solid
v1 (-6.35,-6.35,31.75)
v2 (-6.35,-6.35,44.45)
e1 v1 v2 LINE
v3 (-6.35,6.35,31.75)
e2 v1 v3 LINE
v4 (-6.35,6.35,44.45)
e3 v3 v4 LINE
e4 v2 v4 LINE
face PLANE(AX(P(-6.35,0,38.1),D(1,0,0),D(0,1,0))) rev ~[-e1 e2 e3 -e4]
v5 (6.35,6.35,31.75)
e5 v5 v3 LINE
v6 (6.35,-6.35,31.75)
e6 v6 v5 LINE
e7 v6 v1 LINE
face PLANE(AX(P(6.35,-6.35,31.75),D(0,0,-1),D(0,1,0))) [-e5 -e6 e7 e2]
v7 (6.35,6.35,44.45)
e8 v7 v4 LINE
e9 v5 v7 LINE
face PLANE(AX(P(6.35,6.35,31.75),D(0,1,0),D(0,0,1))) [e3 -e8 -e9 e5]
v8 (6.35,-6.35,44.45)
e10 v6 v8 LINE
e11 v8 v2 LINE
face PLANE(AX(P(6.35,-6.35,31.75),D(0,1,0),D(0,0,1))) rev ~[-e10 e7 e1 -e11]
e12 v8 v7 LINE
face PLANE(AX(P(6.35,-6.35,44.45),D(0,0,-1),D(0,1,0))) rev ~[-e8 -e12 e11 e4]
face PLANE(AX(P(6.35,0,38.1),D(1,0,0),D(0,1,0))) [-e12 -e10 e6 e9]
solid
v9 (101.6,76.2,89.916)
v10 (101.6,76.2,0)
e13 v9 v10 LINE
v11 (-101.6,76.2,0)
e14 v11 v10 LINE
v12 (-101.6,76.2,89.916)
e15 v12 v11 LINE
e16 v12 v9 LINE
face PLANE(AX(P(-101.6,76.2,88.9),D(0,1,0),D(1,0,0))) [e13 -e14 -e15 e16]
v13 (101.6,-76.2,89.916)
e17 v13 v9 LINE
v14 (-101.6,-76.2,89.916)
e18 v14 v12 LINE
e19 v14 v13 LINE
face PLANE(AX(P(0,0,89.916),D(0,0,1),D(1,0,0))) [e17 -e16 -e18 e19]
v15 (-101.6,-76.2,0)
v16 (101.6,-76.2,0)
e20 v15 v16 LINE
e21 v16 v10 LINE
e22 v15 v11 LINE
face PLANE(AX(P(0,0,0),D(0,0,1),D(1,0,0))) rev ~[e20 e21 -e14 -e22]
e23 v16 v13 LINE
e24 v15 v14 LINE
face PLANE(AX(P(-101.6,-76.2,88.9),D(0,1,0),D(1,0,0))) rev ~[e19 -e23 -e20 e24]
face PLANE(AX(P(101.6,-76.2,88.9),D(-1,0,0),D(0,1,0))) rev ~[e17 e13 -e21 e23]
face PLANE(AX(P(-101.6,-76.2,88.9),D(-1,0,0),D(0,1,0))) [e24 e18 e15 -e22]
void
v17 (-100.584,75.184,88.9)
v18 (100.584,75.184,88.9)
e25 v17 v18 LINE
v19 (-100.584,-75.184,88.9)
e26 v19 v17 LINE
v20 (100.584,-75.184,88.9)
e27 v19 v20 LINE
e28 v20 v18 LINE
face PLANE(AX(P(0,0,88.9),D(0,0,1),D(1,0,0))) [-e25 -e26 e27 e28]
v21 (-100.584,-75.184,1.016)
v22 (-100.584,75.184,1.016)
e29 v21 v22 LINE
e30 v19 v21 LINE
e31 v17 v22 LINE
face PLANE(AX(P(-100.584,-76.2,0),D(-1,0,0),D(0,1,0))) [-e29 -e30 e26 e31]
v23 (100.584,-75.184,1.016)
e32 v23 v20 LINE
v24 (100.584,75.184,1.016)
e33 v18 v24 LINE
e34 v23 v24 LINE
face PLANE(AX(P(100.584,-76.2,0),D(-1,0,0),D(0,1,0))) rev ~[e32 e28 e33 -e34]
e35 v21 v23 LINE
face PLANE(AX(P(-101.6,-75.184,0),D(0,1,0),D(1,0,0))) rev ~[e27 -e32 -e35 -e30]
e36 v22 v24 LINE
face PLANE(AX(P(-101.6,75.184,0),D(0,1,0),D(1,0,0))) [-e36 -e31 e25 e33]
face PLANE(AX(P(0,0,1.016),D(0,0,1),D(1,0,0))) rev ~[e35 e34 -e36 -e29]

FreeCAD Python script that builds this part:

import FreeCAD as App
import Part
import Sketcher
Q = App.Units.Quantity


def faces_at(feature, points):
    """Names of the faces that lie closest to the given points."""
    faces = feature.Shape.Faces
    near = lambda p: min(range(len(faces)), key=lambda i: faces[i].distToShape(Part.Vertex(*p))[0])
    return sorted({f"Face{near(p) + 1}" for p in points})


def add_polygon(sketch, points):
    """Adds a closed chain of lines whose ends are joined by coincident constraints."""
    first, n = sketch.GeometryCount, len(points)
    for a, b in zip(points, points[1:] + points[:1]):
        sketch.addGeometry(Part.LineSegment(App.Vector(*a, 0), App.Vector(*b, 0)), False)
    for i in range(n):
        sketch.addConstraint(Sketcher.Constraint("Coincident", first + i, 2, first + (i + 1) % n, 1))

doc = App.newDocument("Part")
body = doc.addObject("PartDesign::Body", "Body")

sketch1 = body.newObject("Sketcher::SketchObject", "Sketch")
sketch1.AttachmentSupport = (doc.getObject("XY_Plane"), [""])
sketch1.MapMode = "FlatFace"
add_polygon(sketch1, [(-101.6, 76.2), (-101.6, -76.2), (101.6, -76.2), (101.6, 76.2)])
sketch1.addConstraint([
    Sketcher.Constraint("Vertical", 0),
    Sketcher.Constraint("Horizontal", 1),
    Sketcher.Constraint("Vertical", 2),
    Sketcher.Constraint("Horizontal", 3),
    Sketcher.Constraint("Symmetric", 0, 2, 2, 2, -1, 1),
    Sketcher.Constraint("DistanceX", 1, 1, 1, 2, Q("8 in")),
    Sketcher.Constraint("DistanceY", 0, 2, 0, 1, Q("6 in")),
])
pad1 = body.newObject("PartDesign::Pad", "Pad")
pad1.Profile = sketch1
pad1.Length = Q("3.5 in")
doc.recompute()

thickness = body.newObject("PartDesign::Thickness", "Thickness")
thickness.Base = (pad1, faces_at(pad1, [(0, 0, 88.9)]))
thickness.Value = Q("0.04 in")
thickness.Reversed = True
thickness.Join = "Arc"

sketch2 = body.newObject("Sketcher::SketchObject", "Sketch001")
sketch2.AttachmentSupport = (doc.getObject("XY_Plane"), [""])
sketch2.MapMode = "FlatFace"
sketch2.AttachmentOffset = App.Placement(App.Vector(0, 0, 3.5 * 25.4), App.Rotation())
add_polygon(sketch2, [(-101.6, 76.2), (-101.6, -76.2), (101.6, -76.2), (101.6, 76.2)])
sketch2.addConstraint([
    Sketcher.Constraint("Vertical", 0),
    Sketcher.Constraint("Horizontal", 1),
    Sketcher.Constraint("Vertical", 2),
    Sketcher.Constraint("Horizontal", 3),
    Sketcher.Constraint("Symmetric", 0, 2, 2, 2, -1, 1),
    Sketcher.Constraint("DistanceX", 1, 1, 1, 2, Q("8 in")),
    Sketcher.Constraint("DistanceY", 0, 2, 0, 1, Q("6 in")),
])
pad2 = body.newObject("PartDesign::Pad", "Pad001")
pad2.Profile = sketch2
pad2.Length = Q("0.04 in")
body2 = doc.addObject("PartDesign::Body", "Body001")

sketch3 = body2.newObject("Sketcher::SketchObject", "Sketch002")
sketch3.AttachmentSupport = (doc.getObject("YZ_Plane001"), [""])
sketch3.MapMode = "FlatFace"
sketch3.AttachmentOffset = App.Placement(App.Vector(0, 0, 0.25 * 25.4), App.Rotation())
add_polygon(sketch3, [(-6.35, 44.45), (-6.35, 31.75), (6.35, 31.75), (6.35, 44.45)])
sketch3.addConstraint([
    Sketcher.Constraint("Vertical", 0),
    Sketcher.Constraint("Horizontal", 1),
    Sketcher.Constraint("Vertical", 2),
    Sketcher.Constraint("Horizontal", 3),
    Sketcher.Constraint("Equal", 3, 0),
    Sketcher.Constraint("DistanceX", 1, 1, 1, 2, Q("0.5 in")),
    Sketcher.Constraint("DistanceX", 0, 2, -1, 1, Q("0.25 in")),
    Sketcher.Constraint("DistanceY", -1, 1, 0, 2, Q("1.25 in")),
])
pad3 = body2.newObject("PartDesign::Pad", "Pad002")
pad3.Profile = sketch3
pad3.Length = Q("0.5 in")
pad3.Reversed = True

doc.recompute()
